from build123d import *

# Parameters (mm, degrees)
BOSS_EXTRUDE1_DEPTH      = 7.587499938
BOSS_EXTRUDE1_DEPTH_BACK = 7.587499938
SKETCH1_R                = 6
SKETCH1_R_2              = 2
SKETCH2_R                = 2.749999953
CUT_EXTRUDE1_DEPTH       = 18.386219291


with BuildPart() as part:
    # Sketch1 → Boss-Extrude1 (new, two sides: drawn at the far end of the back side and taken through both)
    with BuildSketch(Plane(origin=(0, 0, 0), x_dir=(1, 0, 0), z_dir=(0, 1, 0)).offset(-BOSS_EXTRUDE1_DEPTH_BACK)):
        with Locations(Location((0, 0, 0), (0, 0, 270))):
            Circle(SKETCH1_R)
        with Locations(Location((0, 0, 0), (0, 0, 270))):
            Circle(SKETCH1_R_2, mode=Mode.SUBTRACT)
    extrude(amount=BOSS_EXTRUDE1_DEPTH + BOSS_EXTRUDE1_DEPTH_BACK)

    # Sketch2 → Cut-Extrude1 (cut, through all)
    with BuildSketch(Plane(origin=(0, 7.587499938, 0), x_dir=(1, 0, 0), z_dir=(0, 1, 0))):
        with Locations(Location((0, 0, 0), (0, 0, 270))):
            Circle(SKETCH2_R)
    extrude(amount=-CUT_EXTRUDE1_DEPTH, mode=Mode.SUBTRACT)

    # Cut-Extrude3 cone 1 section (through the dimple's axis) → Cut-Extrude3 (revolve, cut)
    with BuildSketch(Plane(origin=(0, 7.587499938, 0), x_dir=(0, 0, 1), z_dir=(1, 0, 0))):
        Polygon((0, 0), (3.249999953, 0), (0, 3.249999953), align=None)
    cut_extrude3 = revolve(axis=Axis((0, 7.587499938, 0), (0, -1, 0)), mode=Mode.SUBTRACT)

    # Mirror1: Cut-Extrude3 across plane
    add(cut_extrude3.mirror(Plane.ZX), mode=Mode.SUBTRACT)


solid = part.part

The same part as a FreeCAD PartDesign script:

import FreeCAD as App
import Part
import Sketcher

doc = App.newDocument("Part")
params = doc.addObject("Spreadsheet::Sheet", "Params")
for row, (alias, value) in enumerate([
    ("sketch1_diameter", "12 mm"),
    ("sketch1_diameter2", "4 mm"),
    ("pad1_length", "7.5875 mm"),
    ("pad1_length2", "7.5875 mm"),
    ("sketch2_diameter", "5.5 mm"),
    ("sketch3_width", "3.25 mm"),
    ("groove_angle", "360 deg"),
], start=1):
    params.set(f"A{row}", alias)
    params.set(f"B{row}", "=" + value)
    params.setAlias(f"B{row}", alias)

body = doc.addObject("PartDesign::Body", "Body")

# Sketch on XZ plane
sketch1 = doc.addObject("Sketcher::SketchObject", "Sketch")
body.addObject(sketch1)
sketch1.AttachmentSupport = (doc.XZ_Plane, [""])
sketch1.MapMode = "FlatFace"
sketch1.addGeometry(Part.Circle(App.Vector(0, 0, 0), App.Vector(0, 0, 1), 6), False)
sketch1.addGeometry(Part.Circle(App.Vector(0, 0, 0), App.Vector(0, 0, 1), 2), False)
sketch1.addConstraint(Sketcher.Constraint("Coincident", 0, 3, -1, 1))
sketch1.addConstraint(Sketcher.Constraint("Coincident", 1, 3, -1, 1))
sketch1.addConstraint(Sketcher.Constraint("Diameter", 0, 12.0))
sketch1.addConstraint(Sketcher.Constraint("Diameter", 1, 4.0))
sketch1.setExpression("Constraints[2]", "Params.sketch1_diameter")
sketch1.setExpression("Constraints[3]", "Params.sketch1_diameter2")
pad1 = doc.addObject("PartDesign::Pad", "Pad")
body.addObject(pad1)
pad1.Profile = sketch1
pad1.Type = "TwoLengths"
pad1.setExpression("Length", "Params.pad1_length")
pad1.setExpression("Length2", "Params.pad1_length2")
pad1.Reversed = True

# Sketch on XZ plane
sketch2 = doc.addObject("Sketcher::SketchObject", "Sketch001")
body.addObject(sketch2)
sketch2.AttachmentSupport = (doc.XZ_Plane, [""])
sketch2.MapMode = "FlatFace"
sketch2.AttachmentOffset = App.Placement(App.Vector(0, 0, -7.5875), App.Rotation())
sketch2.addGeometry(Part.Circle(App.Vector(0, 0, 0), App.Vector(0, 0, 1), 2.75), False)
sketch2.addConstraint(Sketcher.Constraint("Coincident", 0, 3, -1, 1))
sketch2.addConstraint(Sketcher.Constraint("Diameter", 0, 5.5))
sketch2.setExpression("Constraints[1]", "Params.sketch2_diameter")
pocket1 = doc.addObject("PartDesign::Pocket", "Pocket")
body.addObject(pocket1)
pocket1.Profile = sketch2
pocket1.Type = "ThroughAll"
pocket1.Reversed = True

# Sketch on YZ plane
sketch3 = doc.addObject("Sketcher::SketchObject", "Sketch002")
body.addObject(sketch3)
sketch3.AttachmentSupport = (doc.YZ_Plane, [""])
sketch3.MapMode = "FlatFace"
sketch3.addGeometry(Part.LineSegment(App.Vector(7.5875, 0, 0), App.Vector(7.5875, 3.25, 0)), False)
sketch3.addGeometry(Part.LineSegment(App.Vector(7.5875, 3.25, 0), App.Vector(4.3375, 0, 0)), False)
sketch3.addGeometry(Part.LineSegment(App.Vector(4.3375, 0, 0), App.Vector(7.5875, 0, 0)), False)
sketch3.addConstraint(Sketcher.Constraint("Coincident", 0, 2, 1, 1))
sketch3.addConstraint(Sketcher.Constraint("Coincident", 1, 2, 2, 1))
sketch3.addConstraint(Sketcher.Constraint("Coincident", 2, 2, 0, 1))
sketch3.addConstraint(Sketcher.Constraint("Vertical", 0))
sketch3.addConstraint(Sketcher.Constraint("Horizontal", 2))
sketch3.addConstraint(Sketcher.Constraint("PointOnObject", 1, 2, -1))
sketch3.addConstraint(Sketcher.Constraint("Equal", 2, 0))
sketch3.addConstraint(Sketcher.Constraint("DistanceX", 2, 1, 2, 2, 3.25))
sketch3.addConstraint(Sketcher.Constraint("DistanceX", -1, 1, 0, 2, 7.5875))
sketch3.setExpression("Constraints[7]", "Params.sketch3_width")
groove = doc.addObject("PartDesign::Groove", "Groove")
body.addObject(groove)
groove.Profile = sketch3
groove.ReferenceAxis = (sketch3, ["H_Axis"])
groove.setExpression("Angle", "Params.groove_angle")
doc.recompute()

mirrored = doc.addObject("PartDesign::Mirrored", "Mirrored")
body.addObject(mirrored)
mirrored.Originals = [groove]
mirrored.MirrorPlane = (doc.XZ_Plane, [""])
body.Tip = mirrored

doc.recompute()
